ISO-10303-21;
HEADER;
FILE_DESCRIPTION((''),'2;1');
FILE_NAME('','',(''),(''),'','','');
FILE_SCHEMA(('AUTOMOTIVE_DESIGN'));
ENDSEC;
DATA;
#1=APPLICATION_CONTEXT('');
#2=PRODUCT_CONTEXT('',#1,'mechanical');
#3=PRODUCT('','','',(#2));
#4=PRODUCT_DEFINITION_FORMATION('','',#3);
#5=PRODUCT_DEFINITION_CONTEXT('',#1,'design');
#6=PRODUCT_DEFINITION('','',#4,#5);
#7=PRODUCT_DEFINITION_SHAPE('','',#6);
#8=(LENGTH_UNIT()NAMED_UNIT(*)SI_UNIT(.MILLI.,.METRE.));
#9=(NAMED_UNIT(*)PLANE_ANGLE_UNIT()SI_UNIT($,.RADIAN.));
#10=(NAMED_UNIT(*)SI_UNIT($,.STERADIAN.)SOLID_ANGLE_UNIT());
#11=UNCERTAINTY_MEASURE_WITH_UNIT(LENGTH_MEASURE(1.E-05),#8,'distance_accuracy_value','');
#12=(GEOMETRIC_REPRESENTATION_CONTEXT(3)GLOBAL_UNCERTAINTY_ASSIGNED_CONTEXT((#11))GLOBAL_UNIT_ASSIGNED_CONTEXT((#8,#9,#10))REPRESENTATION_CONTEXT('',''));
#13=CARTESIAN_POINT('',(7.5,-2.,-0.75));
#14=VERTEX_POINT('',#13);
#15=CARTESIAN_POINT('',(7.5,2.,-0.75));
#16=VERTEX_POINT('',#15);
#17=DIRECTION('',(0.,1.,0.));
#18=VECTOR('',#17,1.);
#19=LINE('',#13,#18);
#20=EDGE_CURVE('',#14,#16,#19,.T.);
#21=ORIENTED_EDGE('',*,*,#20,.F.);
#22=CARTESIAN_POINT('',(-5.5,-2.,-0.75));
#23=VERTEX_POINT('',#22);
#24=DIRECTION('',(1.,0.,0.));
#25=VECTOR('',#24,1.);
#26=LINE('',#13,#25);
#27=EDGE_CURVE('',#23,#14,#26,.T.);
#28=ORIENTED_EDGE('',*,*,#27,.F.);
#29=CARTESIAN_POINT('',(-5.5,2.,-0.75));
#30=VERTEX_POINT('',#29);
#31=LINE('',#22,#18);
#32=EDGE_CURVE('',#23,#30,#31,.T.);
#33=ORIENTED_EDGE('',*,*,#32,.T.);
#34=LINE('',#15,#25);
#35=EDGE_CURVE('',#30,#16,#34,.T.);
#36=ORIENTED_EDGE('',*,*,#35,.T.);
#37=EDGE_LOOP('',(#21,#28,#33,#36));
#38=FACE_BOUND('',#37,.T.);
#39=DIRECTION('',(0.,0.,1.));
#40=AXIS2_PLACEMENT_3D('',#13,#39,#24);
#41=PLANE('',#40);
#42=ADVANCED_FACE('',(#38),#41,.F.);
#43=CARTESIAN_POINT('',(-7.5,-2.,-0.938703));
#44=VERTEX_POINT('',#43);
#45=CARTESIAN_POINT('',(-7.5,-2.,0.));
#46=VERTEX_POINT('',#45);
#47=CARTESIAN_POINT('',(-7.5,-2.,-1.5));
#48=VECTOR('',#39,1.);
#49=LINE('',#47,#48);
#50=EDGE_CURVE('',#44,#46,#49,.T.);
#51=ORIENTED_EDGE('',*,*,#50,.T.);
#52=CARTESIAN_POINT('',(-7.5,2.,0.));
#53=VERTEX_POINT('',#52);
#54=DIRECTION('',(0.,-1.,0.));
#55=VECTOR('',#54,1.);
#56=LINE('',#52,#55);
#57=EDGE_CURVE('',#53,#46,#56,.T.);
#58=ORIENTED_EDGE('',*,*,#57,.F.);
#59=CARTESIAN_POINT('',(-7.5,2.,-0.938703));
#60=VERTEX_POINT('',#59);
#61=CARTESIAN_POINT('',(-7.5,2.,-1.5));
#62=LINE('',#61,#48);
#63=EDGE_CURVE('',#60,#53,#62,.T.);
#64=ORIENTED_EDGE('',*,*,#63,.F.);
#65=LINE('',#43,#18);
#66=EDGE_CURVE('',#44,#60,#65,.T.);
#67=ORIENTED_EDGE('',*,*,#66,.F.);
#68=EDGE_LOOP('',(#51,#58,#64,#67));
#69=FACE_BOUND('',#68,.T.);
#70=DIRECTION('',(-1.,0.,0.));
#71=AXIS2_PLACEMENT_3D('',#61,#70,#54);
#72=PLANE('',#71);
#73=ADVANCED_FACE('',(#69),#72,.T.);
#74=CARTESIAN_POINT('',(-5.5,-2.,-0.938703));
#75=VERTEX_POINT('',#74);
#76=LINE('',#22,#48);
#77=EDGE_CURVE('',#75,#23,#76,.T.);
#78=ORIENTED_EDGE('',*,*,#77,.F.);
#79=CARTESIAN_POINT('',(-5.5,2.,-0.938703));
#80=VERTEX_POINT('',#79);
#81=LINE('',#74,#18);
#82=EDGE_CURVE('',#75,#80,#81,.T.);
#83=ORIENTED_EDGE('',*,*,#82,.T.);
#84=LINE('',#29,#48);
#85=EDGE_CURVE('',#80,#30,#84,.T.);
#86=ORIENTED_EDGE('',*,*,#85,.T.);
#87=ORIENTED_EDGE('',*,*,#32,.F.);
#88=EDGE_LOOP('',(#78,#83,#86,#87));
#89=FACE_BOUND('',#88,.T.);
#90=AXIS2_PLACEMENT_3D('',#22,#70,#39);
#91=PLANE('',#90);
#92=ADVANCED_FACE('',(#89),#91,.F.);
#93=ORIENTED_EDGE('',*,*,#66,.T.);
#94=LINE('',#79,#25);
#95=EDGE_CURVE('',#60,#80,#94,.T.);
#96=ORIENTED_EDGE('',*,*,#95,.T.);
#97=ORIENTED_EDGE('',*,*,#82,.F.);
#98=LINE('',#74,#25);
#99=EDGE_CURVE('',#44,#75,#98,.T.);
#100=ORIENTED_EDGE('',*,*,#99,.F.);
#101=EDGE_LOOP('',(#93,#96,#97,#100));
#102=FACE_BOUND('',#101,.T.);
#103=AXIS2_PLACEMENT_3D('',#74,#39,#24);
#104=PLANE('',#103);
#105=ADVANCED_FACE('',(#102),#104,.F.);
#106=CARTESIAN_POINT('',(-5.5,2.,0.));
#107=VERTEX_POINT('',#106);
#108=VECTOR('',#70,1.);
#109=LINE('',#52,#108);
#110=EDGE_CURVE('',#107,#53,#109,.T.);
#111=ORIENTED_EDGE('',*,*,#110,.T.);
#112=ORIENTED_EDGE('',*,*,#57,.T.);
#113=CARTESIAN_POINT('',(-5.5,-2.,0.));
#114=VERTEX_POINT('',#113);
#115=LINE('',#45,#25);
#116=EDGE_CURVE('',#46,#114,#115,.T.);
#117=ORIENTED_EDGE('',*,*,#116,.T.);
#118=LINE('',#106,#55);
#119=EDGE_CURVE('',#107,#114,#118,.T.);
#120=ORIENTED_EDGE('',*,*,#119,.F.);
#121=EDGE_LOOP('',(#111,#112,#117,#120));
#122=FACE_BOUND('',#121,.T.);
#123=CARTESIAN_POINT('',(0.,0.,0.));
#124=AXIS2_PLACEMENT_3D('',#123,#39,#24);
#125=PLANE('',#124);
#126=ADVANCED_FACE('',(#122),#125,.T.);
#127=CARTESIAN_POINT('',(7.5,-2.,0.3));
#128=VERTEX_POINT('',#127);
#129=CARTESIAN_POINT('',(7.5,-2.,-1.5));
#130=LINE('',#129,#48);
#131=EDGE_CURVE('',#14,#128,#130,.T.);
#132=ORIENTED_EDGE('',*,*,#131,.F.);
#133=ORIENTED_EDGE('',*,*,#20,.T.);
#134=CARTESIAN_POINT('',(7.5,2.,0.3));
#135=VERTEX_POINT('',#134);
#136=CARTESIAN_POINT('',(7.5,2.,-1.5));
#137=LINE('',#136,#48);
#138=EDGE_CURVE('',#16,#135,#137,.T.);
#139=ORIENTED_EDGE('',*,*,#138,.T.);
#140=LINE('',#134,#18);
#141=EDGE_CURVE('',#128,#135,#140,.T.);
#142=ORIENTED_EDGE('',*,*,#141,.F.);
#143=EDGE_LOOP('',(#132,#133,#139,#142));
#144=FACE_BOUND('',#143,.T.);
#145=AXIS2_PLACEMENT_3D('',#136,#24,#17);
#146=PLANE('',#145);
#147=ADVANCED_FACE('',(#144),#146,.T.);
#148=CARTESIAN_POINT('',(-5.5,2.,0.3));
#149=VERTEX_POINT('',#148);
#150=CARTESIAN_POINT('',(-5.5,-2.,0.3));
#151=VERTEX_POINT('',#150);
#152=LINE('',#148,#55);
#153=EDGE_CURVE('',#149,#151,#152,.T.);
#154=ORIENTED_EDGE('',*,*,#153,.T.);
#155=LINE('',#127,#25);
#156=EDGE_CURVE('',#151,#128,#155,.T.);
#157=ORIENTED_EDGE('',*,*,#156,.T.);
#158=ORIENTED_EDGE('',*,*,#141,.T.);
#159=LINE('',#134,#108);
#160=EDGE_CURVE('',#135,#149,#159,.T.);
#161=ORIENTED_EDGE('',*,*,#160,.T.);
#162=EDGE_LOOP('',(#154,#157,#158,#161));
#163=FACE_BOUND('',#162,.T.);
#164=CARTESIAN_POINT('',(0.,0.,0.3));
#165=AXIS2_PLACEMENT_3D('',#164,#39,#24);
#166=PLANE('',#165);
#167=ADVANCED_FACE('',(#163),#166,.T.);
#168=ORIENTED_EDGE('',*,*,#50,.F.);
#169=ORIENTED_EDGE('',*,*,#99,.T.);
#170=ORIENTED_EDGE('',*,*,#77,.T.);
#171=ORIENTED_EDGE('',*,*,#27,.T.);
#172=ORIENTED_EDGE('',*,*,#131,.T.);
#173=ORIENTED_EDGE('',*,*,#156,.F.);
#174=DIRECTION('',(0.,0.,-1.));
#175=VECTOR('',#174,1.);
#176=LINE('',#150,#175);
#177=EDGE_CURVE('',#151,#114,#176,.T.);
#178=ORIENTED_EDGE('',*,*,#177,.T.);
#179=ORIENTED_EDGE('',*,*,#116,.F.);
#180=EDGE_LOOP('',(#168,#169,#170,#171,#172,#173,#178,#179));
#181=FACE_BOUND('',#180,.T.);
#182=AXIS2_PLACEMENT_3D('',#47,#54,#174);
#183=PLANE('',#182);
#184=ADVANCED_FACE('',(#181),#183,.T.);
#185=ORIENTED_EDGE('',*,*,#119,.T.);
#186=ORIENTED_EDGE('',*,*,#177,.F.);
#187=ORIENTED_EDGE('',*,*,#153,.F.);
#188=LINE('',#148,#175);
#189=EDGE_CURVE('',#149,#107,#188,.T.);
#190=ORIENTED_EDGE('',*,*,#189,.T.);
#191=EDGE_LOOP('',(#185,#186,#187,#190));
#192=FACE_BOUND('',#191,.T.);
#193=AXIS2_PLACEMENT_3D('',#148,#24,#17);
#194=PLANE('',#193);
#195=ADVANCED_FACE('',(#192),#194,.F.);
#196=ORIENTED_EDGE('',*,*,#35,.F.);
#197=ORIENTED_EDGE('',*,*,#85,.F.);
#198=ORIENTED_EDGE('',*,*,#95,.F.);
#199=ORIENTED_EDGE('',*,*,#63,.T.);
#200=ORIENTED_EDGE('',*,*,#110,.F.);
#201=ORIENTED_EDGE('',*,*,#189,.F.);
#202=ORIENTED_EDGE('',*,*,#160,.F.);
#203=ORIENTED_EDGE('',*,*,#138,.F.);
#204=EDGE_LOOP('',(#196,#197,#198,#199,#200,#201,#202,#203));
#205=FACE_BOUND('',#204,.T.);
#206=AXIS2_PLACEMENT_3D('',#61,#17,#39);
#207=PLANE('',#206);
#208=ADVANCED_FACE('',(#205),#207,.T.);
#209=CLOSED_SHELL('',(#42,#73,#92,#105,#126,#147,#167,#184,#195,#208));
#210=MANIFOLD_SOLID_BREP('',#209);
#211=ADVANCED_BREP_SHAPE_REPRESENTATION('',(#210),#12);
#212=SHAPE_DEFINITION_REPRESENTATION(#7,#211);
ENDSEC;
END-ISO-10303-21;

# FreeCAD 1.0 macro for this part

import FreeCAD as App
import Part
import Sketcher
Q = App.Units.Quantity


def add_polygon(sketch, points):
    """Adds a closed chain of lines whose ends are joined by coincident constraints."""
    first, n = sketch.GeometryCount, len(points)
    for a, b in zip(points, points[1:] + points[:1]):
        sketch.addGeometry(Part.LineSegment(App.Vector(*a, 0), App.Vector(*b, 0)), False)
    for i in range(n):
        sketch.addConstraint(Sketcher.Constraint("Coincident", first + i, 2, first + (i + 1) % n, 1))

doc = App.newDocument("Part")
body = doc.addObject("PartDesign::Body", "Body")

# Sketch on XY plane
sketch1 = doc.addObject("Sketcher::SketchObject", "Sketch")
body.addObject(sketch1)
sketch1.AttachmentSupport = (doc.XY_Plane, [""])
sketch1.MapMode = "FlatFace"
add_polygon(sketch1, [(-7.5, 2), (-7.5, -2), (7.5, -2), (7.5, 2)])  # lines 0-3
sketch1.addConstraint([
    Sketcher.Constraint("Vertical", 0),
    Sketcher.Constraint("Horizontal", 1),
    Sketcher.Constraint("Vertical", 2),
    Sketcher.Constraint("Horizontal", 3),
    Sketcher.Constraint("Symmetric", 0, 2, 2, 2, -1, 1),
    Sketcher.Constraint("DistanceX", 1, 1, 1, 2, Q("15 mm")),
    Sketcher.Constraint("DistanceY", 0, 2, 0, 1, Q("4 mm")),
])
pad1 = doc.addObject("PartDesign::Pad", "Pad")
body.addObject(pad1)
pad1.Profile = sketch1
pad1.Length = 1.5
pad1.Reversed = True

# Sketch on XY plane
sketch2 = doc.addObject("Sketcher::SketchObject", "Sketch001")
body.addObject(sketch2)
sketch2.AttachmentSupport = (doc.XY_Plane, [""])
sketch2.MapMode = "FlatFace"
add_polygon(sketch2, [(-5.5, 2), (-5.5, -2), (7.5, -2), (7.5, 2)])  # lines 0-3
sketch2.addConstraint([
    Sketcher.Constraint("Vertical", 0),
    Sketcher.Constraint("Horizontal", 1),
    Sketcher.Constraint("Vertical", 2),
    Sketcher.Constraint("Horizontal", 3),
    Sketcher.Constraint("DistanceX", 1, 1, 1, 2, Q("13 mm")),
    Sketcher.Constraint("DistanceY", 0, 2, 0, 1, Q("4 mm")),
    Sketcher.Constraint("DistanceY", 0, 2, -1, 1, Q("2 mm")),
    Sketcher.Constraint("DistanceX", 0, 2, -1, 1, Q("5.5 mm")),
])
pad2 = doc.addObject("PartDesign::Pad", "Pad001")
body.addObject(pad2)
pad2.Profile = sketch2
pad2.Length = 0.3

# Sketch on XZ plane
sketch3 = doc.addObject("Sketcher::SketchObject", "Sketch002")
body.addObject(sketch3)
sketch3.AttachmentSupport = (doc.XZ_Plane, [""])
sketch3.MapMode = "FlatFace"
sketch3.AttachmentOffset = App.Placement(App.Vector(0, 0, -2), App.Rotation())
add_polygon(sketch3, [(7.5, -1.5), (-7.5, -1.5), (-7.660914, -1.50108), (-7.660914, -0.75), (-7.5, -0.75), (-7.5, -0.938703), (-5.5, -0.938703), (-5.5, -0.75), (7.5, -0.75)])  # lines 0-8
sketch3.addConstraint([
    Sketcher.Constraint("Horizontal", 0),
    Sketcher.Constraint("Vertical", 2),
    Sketcher.Constraint("Horizontal", 3),
    Sketcher.Constraint("Vertical", 4),
    Sketcher.Constraint("Horizontal", 5),
    Sketcher.Constraint("Vertical", 6),
    Sketcher.Constraint("Horizontal", 7),
    Sketcher.Constraint("Vertical", 8),
    Sketcher.Constraint("Symmetric", 3, 2, 7, 2, -2),
    Sketcher.Constraint("Vertical", 0, 2, 3, 2),
    Sketcher.Constraint("DistanceX", 0, 2, 0, 1, Q("15 mm")),
    Sketcher.Constraint("DistanceX", 5, 1, 5, 2, Q("2 mm")),
    Sketcher.Constraint("DistanceY", 8, 2, 8, 1, Q("0.75 mm")),
    Sketcher.Constraint("DistanceY", 0, 2, -1, 1, Q("1.5 mm")),
    Sketcher.Constraint("DistanceY", 2, 1, 2, 2, Q("0.75108 mm")),
    Sketcher.Constraint("DistanceX", 3, 1, 3, 2, Q("0.160914 mm")),
    Sketcher.Constraint("DistanceY", 4, 2, 4, 1, Q("0.188703 mm")),
])
pocket1 = doc.addObject("PartDesign::Pocket", "Pocket")
body.addObject(pocket1)
pocket1.Profile = sketch3
pocket1.Length = 4
pocket1.Reversed = True

doc.recompute()
